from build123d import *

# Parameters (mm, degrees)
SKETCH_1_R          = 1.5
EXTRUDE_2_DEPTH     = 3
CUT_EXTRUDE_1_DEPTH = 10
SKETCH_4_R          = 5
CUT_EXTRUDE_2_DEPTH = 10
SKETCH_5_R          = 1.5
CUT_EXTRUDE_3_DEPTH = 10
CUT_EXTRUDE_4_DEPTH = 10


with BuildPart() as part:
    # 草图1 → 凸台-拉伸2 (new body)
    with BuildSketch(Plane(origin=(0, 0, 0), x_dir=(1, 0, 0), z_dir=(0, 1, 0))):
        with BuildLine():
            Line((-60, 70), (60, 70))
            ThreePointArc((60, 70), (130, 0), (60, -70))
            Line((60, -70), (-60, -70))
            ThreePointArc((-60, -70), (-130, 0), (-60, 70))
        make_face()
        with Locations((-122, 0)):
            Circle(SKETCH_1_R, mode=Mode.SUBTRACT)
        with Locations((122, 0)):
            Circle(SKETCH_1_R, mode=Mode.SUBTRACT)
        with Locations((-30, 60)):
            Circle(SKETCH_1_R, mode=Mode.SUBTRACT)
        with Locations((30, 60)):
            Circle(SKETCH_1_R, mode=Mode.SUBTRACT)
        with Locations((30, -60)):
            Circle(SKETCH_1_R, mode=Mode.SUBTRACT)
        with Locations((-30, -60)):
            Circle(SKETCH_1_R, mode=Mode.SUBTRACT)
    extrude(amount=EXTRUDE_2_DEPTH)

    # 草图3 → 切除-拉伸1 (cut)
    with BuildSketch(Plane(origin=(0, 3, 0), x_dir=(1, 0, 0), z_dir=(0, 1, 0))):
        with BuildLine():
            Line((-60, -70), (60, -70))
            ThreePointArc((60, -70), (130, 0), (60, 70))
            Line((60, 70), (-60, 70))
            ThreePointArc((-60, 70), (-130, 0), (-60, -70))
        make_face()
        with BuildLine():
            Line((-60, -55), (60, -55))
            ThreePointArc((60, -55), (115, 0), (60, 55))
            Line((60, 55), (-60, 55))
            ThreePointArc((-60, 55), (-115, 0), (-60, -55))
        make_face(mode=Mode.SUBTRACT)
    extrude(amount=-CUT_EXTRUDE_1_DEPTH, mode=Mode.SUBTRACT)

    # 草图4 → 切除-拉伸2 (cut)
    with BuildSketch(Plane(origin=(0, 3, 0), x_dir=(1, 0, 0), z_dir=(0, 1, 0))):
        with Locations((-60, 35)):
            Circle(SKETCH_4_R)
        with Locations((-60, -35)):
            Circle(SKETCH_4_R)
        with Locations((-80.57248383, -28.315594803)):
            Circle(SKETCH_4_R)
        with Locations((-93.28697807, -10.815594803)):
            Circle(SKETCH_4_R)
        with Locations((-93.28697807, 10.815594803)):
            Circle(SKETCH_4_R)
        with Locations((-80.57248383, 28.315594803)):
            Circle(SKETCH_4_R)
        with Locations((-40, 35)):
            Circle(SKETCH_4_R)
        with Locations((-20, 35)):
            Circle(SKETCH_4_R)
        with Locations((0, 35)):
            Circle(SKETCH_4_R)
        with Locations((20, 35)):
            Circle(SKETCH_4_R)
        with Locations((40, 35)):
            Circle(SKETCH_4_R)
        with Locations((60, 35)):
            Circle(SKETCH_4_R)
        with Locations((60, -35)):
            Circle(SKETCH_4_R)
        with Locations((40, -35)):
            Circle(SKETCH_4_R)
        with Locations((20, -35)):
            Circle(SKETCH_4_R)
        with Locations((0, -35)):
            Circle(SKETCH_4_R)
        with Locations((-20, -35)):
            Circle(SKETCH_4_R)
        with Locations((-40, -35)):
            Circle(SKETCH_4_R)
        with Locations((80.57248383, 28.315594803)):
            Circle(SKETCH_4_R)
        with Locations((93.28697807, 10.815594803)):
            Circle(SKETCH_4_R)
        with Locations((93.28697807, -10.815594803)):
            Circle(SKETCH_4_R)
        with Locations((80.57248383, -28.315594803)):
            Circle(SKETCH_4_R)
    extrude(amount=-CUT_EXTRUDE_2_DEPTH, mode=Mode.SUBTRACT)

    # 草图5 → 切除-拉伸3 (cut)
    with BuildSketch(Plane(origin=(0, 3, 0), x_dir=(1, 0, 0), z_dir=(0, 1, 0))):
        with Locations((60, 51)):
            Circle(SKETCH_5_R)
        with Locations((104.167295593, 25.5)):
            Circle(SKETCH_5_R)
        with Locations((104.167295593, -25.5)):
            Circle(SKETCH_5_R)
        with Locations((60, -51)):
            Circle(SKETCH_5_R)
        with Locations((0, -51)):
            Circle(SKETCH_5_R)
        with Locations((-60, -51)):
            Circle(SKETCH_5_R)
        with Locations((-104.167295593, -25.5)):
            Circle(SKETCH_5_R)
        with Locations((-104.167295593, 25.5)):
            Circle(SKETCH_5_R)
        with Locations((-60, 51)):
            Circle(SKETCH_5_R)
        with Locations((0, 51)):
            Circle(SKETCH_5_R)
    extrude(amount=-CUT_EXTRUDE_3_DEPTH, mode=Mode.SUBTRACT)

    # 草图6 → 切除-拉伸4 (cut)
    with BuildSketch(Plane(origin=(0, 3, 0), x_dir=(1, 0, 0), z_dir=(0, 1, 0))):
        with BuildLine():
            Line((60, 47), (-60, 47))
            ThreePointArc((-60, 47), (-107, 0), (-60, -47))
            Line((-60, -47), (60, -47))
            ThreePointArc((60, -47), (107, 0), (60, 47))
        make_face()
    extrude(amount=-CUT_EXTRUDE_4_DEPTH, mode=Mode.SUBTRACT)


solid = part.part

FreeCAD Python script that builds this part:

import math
import FreeCAD as App
import Part
import Sketcher
from FreeCAD import Vector
Q = App.Units.Quantity

doc = App.newDocument("Part")
params = doc.addObject("Spreadsheet::Sheet", "Params")
for row, (alias, value) in enumerate([
    ("sketch1_diameter", "3 mm"),
    ("sketch1_radius", "70 mm"),
    ("sketch1_width", "120 mm"),
    ("pad1_length", "3 mm"),
    ("sketch2_radius", "70 mm"),
    ("sketch2_radius2", "55 mm"),
    ("sketch2_width", "120 mm"),
    ("pocket1_length", "10 mm"),
    ("sketch3_diameter", "10 mm"),
    ("pocket2_length", "10 mm"),
    ("sketch4_diameter", "3 mm"),
    ("pocket3_length", "10 mm"),
    ("sketch5_radius", "47 mm"),
    ("sketch5_width", "120 mm"),
    ("pocket4_length", "10 mm"),
], start=1):
    params.set(f"A{row}", alias)
    params.set(f"B{row}", "=" + value)
    params.setAlias(f"B{row}", alias)

body = doc.addObject("PartDesign::Body", "Body")

sketch1 = body.newObject("Sketcher::SketchObject", "Sketch")
sketch1.AttachmentSupport = (doc.getObject("XZ_Plane"), [""])
sketch1.MapMode = "FlatFace"
sketch1.addGeometry([
    Part.LineSegment(Vector(60, -70, 0), Vector(-60, -70, 0)),
    Part.ArcOfCircle(Part.Circle(Vector(-60, 0, 0), Vector(0, 0, 1), 70), math.radians(90), math.radians(270)),
    Part.LineSegment(Vector(-60, 70, 0), Vector(60, 70, 0)),
    Part.ArcOfCircle(Part.Circle(Vector(60, 0, 0), Vector(0, 0, 1), 70), math.radians(-90), math.radians(90)),
    Part.Circle(Vector(30, 60, 0), Vector(0, 0, 1), 1.5),
    Part.Circle(Vector(-30, 60, 0), Vector(0, 0, 1), 1.5),
    Part.Circle(Vector(122, 0, 0), Vector(0, 0, 1), 1.5),
    Part.Circle(Vector(30, -60, 0), Vector(0, 0, 1), 1.5),
    Part.Circle(Vector(-122, 0, 0), Vector(0, 0, 1), 1.5),
    Part.Circle(Vector(-30, -60, 0), Vector(0, 0, 1), 1.5),
], False)
sketch1.addConstraint([
    Sketcher.Constraint("Tangent", 0, 2, 1, 2),
    Sketcher.Constraint("Tangent", 1, 1, 2, 1),
    Sketcher.Constraint("Tangent", 2, 2, 3, 2),
    Sketcher.Constraint("Tangent", 3, 1, 0, 1),
    Sketcher.Constraint("Horizontal", 0),
    Sketcher.Constraint("Horizontal", 2),
    Sketcher.Constraint("Equal", 4, 5),
    Sketcher.Constraint("Equal", 5, 6),
    Sketcher.Constraint("Equal", 6, 7),
    Sketcher.Constraint("Equal", 7, 8),
    Sketcher.Constraint("Equal", 8, 9),
    Sketcher.Constraint("Symmetric", 1, 3, 3, 3, -1, 1),
    Sketcher.Constraint("Symmetric", 5, 3, 7, 3, -1, 1),
    Sketcher.Constraint("Symmetric", 6, 3, 8, 3, -1, 1),
    Sketcher.Constraint("Symmetric", 4, 3, 9, 3, -1, 1),
    Sketcher.Constraint("Symmetric", 4, 3, 5, 3, -2),
    Sketcher.Constraint("PointOnObject", 6, 3, -1),
    Sketcher.Constraint("Diameter", 4, Q("3 mm")),
    Sketcher.Constraint("Radius", 1, Q("70 mm")),
    Sketcher.Constraint("DistanceX", 0, 2, 0, 1, Q("120 mm")),
    Sketcher.Constraint("DistanceX", -1, 1, 4, 3, Q("30 mm")),
    Sketcher.Constraint("DistanceY", -1, 1, 4, 3, Q("60 mm")),
    Sketcher.Constraint("DistanceX", -1, 1, 6, 3, Q("122 mm")),
])
sketch1.setExpression("Constraints[17]", "Params.sketch1_diameter")
sketch1.setExpression("Constraints[18]", "Params.sketch1_radius")
sketch1.setExpression("Constraints[19]", "Params.sketch1_width")
pad1 = body.newObject("PartDesign::Pad", "Pad")
pad1.Profile = sketch1
pad1.setExpression("Length", "Params.pad1_length")
pad1.Reversed = True

sketch2 = body.newObject("Sketcher::SketchObject", "Sketch001")
sketch2.AttachmentSupport = (doc.getObject("XZ_Plane"), [""])
sketch2.MapMode = "FlatFace"
sketch2.AttachmentOffset = App.Placement(Vector(0, 0, -3), App.Rotation())
sketch2.addGeometry([
    Part.LineSegment(Vector(-60, 70, 0), Vector(60, 70, 0)),
    Part.ArcOfCircle(Part.Circle(Vector(60, 0, 0), Vector(0, 0, 1), 70), math.radians(-90), math.radians(90)),
    Part.LineSegment(Vector(60, -70, 0), Vector(-60, -70, 0)),
    Part.ArcOfCircle(Part.Circle(Vector(-60, 0, 0), Vector(0, 0, 1), 70), math.radians(90), math.radians(270)),
    Part.LineSegment(Vector(60, 55, 0), Vector(-60, 55, 0)),
    Part.ArcOfCircle(Part.Circle(Vector(-60, 0, 0), Vector(0, 0, 1), 55), math.radians(90), math.radians(270)),
    Part.LineSegment(Vector(-60, -55, 0), Vector(60, -55, 0)),
    Part.ArcOfCircle(Part.Circle(Vector(60, 0, 0), Vector(0, 0, 1), 55), math.radians(-90), math.radians(90)),
], False)
sketch2.addConstraint([
    Sketcher.Constraint("Tangent", 0, 2, 1, 2),
    Sketcher.Constraint("Tangent", 1, 1, 2, 1),
    Sketcher.Constraint("Tangent", 2, 2, 3, 2),
    Sketcher.Constraint("Tangent", 3, 1, 0, 1),
    Sketcher.Constraint("Tangent", 4, 2, 5, 1),
    Sketcher.Constraint("Tangent", 5, 2, 6, 1),
    Sketcher.Constraint("Tangent", 6, 2, 7, 1),
    Sketcher.Constraint("Tangent", 7, 2, 4, 1),
    Sketcher.Constraint("Horizontal", 0),
    Sketcher.Constraint("Horizontal", 2),
    Sketcher.Constraint("Horizontal", 4),
    Sketcher.Constraint("Horizontal", 6),
    Sketcher.Constraint("Coincident", 5, 3, 3, 3),
    Sketcher.Constraint("Symmetric", 1, 3, 3, 3, -1, 1),
    Sketcher.Constraint("Vertical", 7, 3, 0, 2),
    Sketcher.Constraint("Radius", 1, Q("70 mm")),
    Sketcher.Constraint("Radius", 5, Q("55 mm")),
    Sketcher.Constraint("DistanceX", 0, 1, 0, 2, Q("120 mm")),
])
sketch2.setExpression("Constraints[15]", "Params.sketch2_radius")
sketch2.setExpression("Constraints[16]", "Params.sketch2_radius2")
sketch2.setExpression("Constraints[17]", "Params.sketch2_width")
pocket1 = body.newObject("PartDesign::Pocket", "Pocket")
pocket1.Profile = sketch2
pocket1.setExpression("Length", "Params.pocket1_length")
pocket1.Reversed = True

sketch3 = body.newObject("Sketcher::SketchObject", "Sketch002")
sketch3.AttachmentSupport = (doc.getObject("XZ_Plane"), [""])
sketch3.MapMode = "FlatFace"
sketch3.AttachmentOffset = App.Placement(Vector(0, 0, -3), App.Rotation())
sketch3.addGeometry([
    Part.Circle(Vector(-60, -35, 0), Vector(0, 0, 1), 5),
    Part.Circle(Vector(-60, 35, 0), Vector(0, 0, 1), 5),
    Part.Circle(Vector(-81, 28, 0), Vector(0, 0, 1), 5),
    Part.Circle(Vector(-93, 11, 0), Vector(0, 0, 1), 5),
    Part.Circle(Vector(-93, -11, 0), Vector(0, 0, 1), 5),
    Part.Circle(Vector(-81, -28, 0), Vector(0, 0, 1), 5),
    Part.Circle(Vector(-40, -35, 0), Vector(0, 0, 1), 5),
    Part.Circle(Vector(-20, -35, 0), Vector(0, 0, 1), 5),
    Part.Circle(Vector(0, -35, 0), Vector(0, 0, 1), 5),
    Part.Circle(Vector(20, -35, 0), Vector(0, 0, 1), 5),
    Part.Circle(Vector(40, -35, 0), Vector(0, 0, 1), 5),
    Part.Circle(Vector(60, -35, 0), Vector(0, 0, 1), 5),
    Part.Circle(Vector(60, 35, 0), Vector(0, 0, 1), 5),
    Part.Circle(Vector(40, 35, 0), Vector(0, 0, 1), 5),
    Part.Circle(Vector(20, 35, 0), Vector(0, 0, 1), 5),
    Part.Circle(Vector(0, 35, 0), Vector(0, 0, 1), 5),
    Part.Circle(Vector(-20, 35, 0), Vector(0, 0, 1), 5),
    Part.Circle(Vector(-40, 35, 0), Vector(0, 0, 1), 5),
    Part.Circle(Vector(81, -28, 0), Vector(0, 0, 1), 5),
    Part.Circle(Vector(93, -11, 0), Vector(0, 0, 1), 5),
    Part.Circle(Vector(93, 11, 0), Vector(0, 0, 1), 5),
    Part.Circle(Vector(81, 28, 0), Vector(0, 0, 1), 5),
], False)
sketch3.addConstraint([
    Sketcher.Constraint("Equal", 0, 1),
    Sketcher.Constraint("Equal", 1, 2),
    Sketcher.Constraint("Equal", 2, 3),
    Sketcher.Constraint("Equal", 3, 4),
    Sketcher.Constraint("Equal", 4, 5),
    Sketcher.Constraint("Equal", 5, 6),
    Sketcher.Constraint("Equal", 6, 7),
    Sketcher.Constraint("Equal", 7, 8),
    Sketcher.Constraint("Equal", 8, 9),
    Sketcher.Constraint("Equal", 9, 10),
    Sketcher.Constraint("Equal", 10, 11),
    Sketcher.Constraint("Equal", 11, 12),
    Sketcher.Constraint("Equal", 12, 13),
    Sketcher.Constraint("Equal", 13, 14),
    Sketcher.Constraint("Equal", 14, 15),
    Sketcher.Constraint("Equal", 15, 16),
    Sketcher.Constraint("Equal", 16, 17),
    Sketcher.Constraint("Equal", 17, 18),
    Sketcher.Constraint("Equal", 18, 19),
    Sketcher.Constraint("Equal", 19, 20),
    Sketcher.Constraint("Equal", 20, 21),
    Sketcher.Constraint("Symmetric", 1, 3, 11, 3, -1, 1),
    Sketcher.Constraint("Symmetric", 0, 3, 12, 3, -1, 1),
    Sketcher.Constraint("Symmetric", 6, 3, 13, 3, -1, 1),
    Sketcher.Constraint("Symmetric", 7, 3, 14, 3, -1, 1),
    Sketcher.Constraint("Symmetric", 8, 3, 15, 3, -1, 1),
    Sketcher.Constraint("Symmetric", 9, 3, 16, 3, -1, 1),
    Sketcher.Constraint("Symmetric", 10, 3, 17, 3, -1, 1),
    Sketcher.Constraint("Symmetric", 2, 3, 18, 3, -1, 1),
    Sketcher.Constraint("Symmetric", 3, 3, 19, 3, -1, 1),
    Sketcher.Constraint("Symmetric", 4, 3, 20, 3, -1, 1),
    Sketcher.Constraint("Symmetric", 5, 3, 21, 3, -1, 1),
    Sketcher.Constraint("Symmetric", 7, 3, 9, 3, -2),
    Sketcher.Constraint("Symmetric", 6, 3, 10, 3, -2),
    Sketcher.Constraint("Symmetric", 0, 3, 11, 3, -2),
    Sketcher.Constraint("Symmetric", 5, 3, 18, 3, -2),
    Sketcher.Constraint("Symmetric", 4, 3, 19, 3, -2),
    Sketcher.Constraint("PointOnObject", 8, 3, -2),
    Sketcher.Constraint("Horizontal", 0, 3, 6, 3),
    Sketcher.Constraint("Horizontal", 6, 3, 7, 3),
    Sketcher.Constraint("Horizontal", 7, 3, 8, 3),
    Sketcher.Constraint("Diameter", 0, Q("10 mm")),
    Sketcher.Constraint("DistanceX", 0, 3, -1, 1, Q("60 mm")),
    Sketcher.Constraint("DistanceY", 0, 3, -1, 1, Q("35 mm")),
    Sketcher.Constraint("DistanceX", 6, 3, -1, 1, Q("40 mm")),
    Sketcher.Constraint("DistanceX", 7, 3, -1, 1, Q("20 mm")),
    Sketcher.Constraint("DistanceY", 3, 3, 2, 3, Q("17.5 mm")),
    Sketcher.Constraint("DistanceX", 3, 3, -1, 1, Q("93.286978 mm")),
    Sketcher.Constraint("DistanceY", 4, 3, 3, 3, Q("21.63119 mm")),
    Sketcher.Constraint("DistanceX", 2, 3, -1, 1, Q("80.572484 mm")),
])
sketch3.setExpression("Constraints[41]", "Params.sketch3_diameter")
pocket2 = body.newObject("PartDesign::Pocket", "Pocket001")
pocket2.Profile = sketch3
pocket2.setExpression("Length", "Params.pocket2_length")
pocket2.Reversed = True

sketch4 = body.newObject("Sketcher::SketchObject", "Sketch003")
sketch4.AttachmentSupport = (doc.getObject("XZ_Plane"), [""])
sketch4.MapMode = "FlatFace"
sketch4.AttachmentOffset = App.Placement(Vector(0, 0, -3), App.Rotation())
sketch4.addGeometry([
    Part.Circle(Vector(60, -51, 0), Vector(0, 0, 1), 1.5),
    Part.Circle(Vector(104.2, -25.5, 0), Vector(0, 0, 1), 1.5),
    Part.Circle(Vector(104.2, 25.5, 0), Vector(0, 0, 1), 1.5),
    Part.Circle(Vector(60, 51, 0), Vector(0, 0, 1), 1.5),
    Part.Circle(Vector(0, 51, 0), Vector(0, 0, 1), 1.5),
    Part.Circle(Vector(-60, 51, 0), Vector(0, 0, 1), 1.5),
    Part.Circle(Vector(-104.2, 25.5, 0), Vector(0, 0, 1), 1.5),
    Part.Circle(Vector(-104.2, -25.5, 0), Vector(0, 0, 1), 1.5),
    Part.Circle(Vector(-60, -51, 0), Vector(0, 0, 1), 1.5),
    Part.Circle(Vector(0, -51, 0), Vector(0, 0, 1), 1.5),
], False)
sketch4.addConstraint([
    Sketcher.Constraint("Equal", 0, 1),
    Sketcher.Constraint("Equal", 1, 2),
    Sketcher.Constraint("Equal", 2, 3),
    Sketcher.Constraint("Equal", 3, 4),
    Sketcher.Constraint("Equal", 4, 5),
    Sketcher.Constraint("Equal", 5, 6),
    Sketcher.Constraint("Equal", 6, 7),
    Sketcher.Constraint("Equal", 7, 8),
    Sketcher.Constraint("Equal", 8, 9),
    Sketcher.Constraint("Symmetric", 0, 3, 5, 3, -1, 1),
    Sketcher.Constraint("Symmetric", 1, 3, 6, 3, -1, 1),
    Sketcher.Constraint("Symmetric", 2, 3, 7, 3, -1, 1),
    Sketcher.Constraint("Symmetric", 3, 3, 8, 3, -1, 1),
    Sketcher.Constraint("Symmetric", 4, 3, 9, 3, -1, 1),
    Sketcher.Constraint("Symmetric", 3, 3, 5, 3, -2),
    Sketcher.Constraint("Symmetric", 2, 3, 6, 3, -2),
    Sketcher.Constraint("PointOnObject", 4, 3, -2),
    Sketcher.Constraint("Horizontal", 3, 3, 4, 3),
    Sketcher.Constraint("Diameter", 0, Q("3 mm")),
    Sketcher.Constraint("DistanceX", -1, 1, 0, 3, Q("60 mm")),
    Sketcher.Constraint("DistanceY", 0, 3, -1, 1, Q("51 mm")),
    Sketcher.Constraint("DistanceY", 1, 3, 2, 3, Q("51 mm")),
    Sketcher.Constraint("DistanceX", 6, 3, 2, 3, Q("208.334591 mm")),
])
sketch4.setExpression("Constraints[18]", "Params.sketch4_diameter")
pocket3 = body.newObject("PartDesign::Pocket", "Pocket002")
pocket3.Profile = sketch4
pocket3.setExpression("Length", "Params.pocket3_length")
pocket3.Reversed = True

sketch5 = body.newObject("Sketcher::SketchObject", "Sketch004")
sketch5.AttachmentSupport = (doc.getObject("XZ_Plane"), [""])
sketch5.MapMode = "FlatFace"
sketch5.AttachmentOffset = App.Placement(Vector(0, 0, -3), App.Rotation())
sketch5.addGeometry([
    Part.LineSegment(Vector(60, -47, 0), Vector(-60, -47, 0)),
    Part.ArcOfCircle(Part.Circle(Vector(-60, 0, 0), Vector(0, 0, 1), 47), math.radians(90), math.radians(270)),
    Part.LineSegment(Vector(-60, 47, 0), Vector(60, 47, 0)),
    Part.ArcOfCircle(Part.Circle(Vector(60, 0, 0), Vector(0, 0, 1), 47), math.radians(-90), math.radians(90)),
], False)
sketch5.addConstraint([
    Sketcher.Constraint("Tangent", 0, 2, 1, 2),
    Sketcher.Constraint("Tangent", 1, 1, 2, 1),
    Sketcher.Constraint("Tangent", 2, 2, 3, 2),
    Sketcher.Constraint("Tangent", 3, 1, 0, 1),
    Sketcher.Constraint("Horizontal", 0),
    Sketcher.Constraint("Horizontal", 2),
    Sketcher.Constraint("Symmetric", 1, 3, 3, 3, -1, 1),
    Sketcher.Constraint("Radius", 1, Q("47 mm")),
    Sketcher.Constraint("DistanceX", 0, 2, 0, 1, Q("120 mm")),
])
sketch5.setExpression("Constraints[7]", "Params.sketch5_radius")
sketch5.setExpression("Constraints[8]", "Params.sketch5_width")
pocket4 = body.newObject("PartDesign::Pocket", "Pocket003")
pocket4.Profile = sketch5
pocket4.setExpression("Length", "Params.pocket4_length")
pocket4.Reversed = True

doc.recompute()
